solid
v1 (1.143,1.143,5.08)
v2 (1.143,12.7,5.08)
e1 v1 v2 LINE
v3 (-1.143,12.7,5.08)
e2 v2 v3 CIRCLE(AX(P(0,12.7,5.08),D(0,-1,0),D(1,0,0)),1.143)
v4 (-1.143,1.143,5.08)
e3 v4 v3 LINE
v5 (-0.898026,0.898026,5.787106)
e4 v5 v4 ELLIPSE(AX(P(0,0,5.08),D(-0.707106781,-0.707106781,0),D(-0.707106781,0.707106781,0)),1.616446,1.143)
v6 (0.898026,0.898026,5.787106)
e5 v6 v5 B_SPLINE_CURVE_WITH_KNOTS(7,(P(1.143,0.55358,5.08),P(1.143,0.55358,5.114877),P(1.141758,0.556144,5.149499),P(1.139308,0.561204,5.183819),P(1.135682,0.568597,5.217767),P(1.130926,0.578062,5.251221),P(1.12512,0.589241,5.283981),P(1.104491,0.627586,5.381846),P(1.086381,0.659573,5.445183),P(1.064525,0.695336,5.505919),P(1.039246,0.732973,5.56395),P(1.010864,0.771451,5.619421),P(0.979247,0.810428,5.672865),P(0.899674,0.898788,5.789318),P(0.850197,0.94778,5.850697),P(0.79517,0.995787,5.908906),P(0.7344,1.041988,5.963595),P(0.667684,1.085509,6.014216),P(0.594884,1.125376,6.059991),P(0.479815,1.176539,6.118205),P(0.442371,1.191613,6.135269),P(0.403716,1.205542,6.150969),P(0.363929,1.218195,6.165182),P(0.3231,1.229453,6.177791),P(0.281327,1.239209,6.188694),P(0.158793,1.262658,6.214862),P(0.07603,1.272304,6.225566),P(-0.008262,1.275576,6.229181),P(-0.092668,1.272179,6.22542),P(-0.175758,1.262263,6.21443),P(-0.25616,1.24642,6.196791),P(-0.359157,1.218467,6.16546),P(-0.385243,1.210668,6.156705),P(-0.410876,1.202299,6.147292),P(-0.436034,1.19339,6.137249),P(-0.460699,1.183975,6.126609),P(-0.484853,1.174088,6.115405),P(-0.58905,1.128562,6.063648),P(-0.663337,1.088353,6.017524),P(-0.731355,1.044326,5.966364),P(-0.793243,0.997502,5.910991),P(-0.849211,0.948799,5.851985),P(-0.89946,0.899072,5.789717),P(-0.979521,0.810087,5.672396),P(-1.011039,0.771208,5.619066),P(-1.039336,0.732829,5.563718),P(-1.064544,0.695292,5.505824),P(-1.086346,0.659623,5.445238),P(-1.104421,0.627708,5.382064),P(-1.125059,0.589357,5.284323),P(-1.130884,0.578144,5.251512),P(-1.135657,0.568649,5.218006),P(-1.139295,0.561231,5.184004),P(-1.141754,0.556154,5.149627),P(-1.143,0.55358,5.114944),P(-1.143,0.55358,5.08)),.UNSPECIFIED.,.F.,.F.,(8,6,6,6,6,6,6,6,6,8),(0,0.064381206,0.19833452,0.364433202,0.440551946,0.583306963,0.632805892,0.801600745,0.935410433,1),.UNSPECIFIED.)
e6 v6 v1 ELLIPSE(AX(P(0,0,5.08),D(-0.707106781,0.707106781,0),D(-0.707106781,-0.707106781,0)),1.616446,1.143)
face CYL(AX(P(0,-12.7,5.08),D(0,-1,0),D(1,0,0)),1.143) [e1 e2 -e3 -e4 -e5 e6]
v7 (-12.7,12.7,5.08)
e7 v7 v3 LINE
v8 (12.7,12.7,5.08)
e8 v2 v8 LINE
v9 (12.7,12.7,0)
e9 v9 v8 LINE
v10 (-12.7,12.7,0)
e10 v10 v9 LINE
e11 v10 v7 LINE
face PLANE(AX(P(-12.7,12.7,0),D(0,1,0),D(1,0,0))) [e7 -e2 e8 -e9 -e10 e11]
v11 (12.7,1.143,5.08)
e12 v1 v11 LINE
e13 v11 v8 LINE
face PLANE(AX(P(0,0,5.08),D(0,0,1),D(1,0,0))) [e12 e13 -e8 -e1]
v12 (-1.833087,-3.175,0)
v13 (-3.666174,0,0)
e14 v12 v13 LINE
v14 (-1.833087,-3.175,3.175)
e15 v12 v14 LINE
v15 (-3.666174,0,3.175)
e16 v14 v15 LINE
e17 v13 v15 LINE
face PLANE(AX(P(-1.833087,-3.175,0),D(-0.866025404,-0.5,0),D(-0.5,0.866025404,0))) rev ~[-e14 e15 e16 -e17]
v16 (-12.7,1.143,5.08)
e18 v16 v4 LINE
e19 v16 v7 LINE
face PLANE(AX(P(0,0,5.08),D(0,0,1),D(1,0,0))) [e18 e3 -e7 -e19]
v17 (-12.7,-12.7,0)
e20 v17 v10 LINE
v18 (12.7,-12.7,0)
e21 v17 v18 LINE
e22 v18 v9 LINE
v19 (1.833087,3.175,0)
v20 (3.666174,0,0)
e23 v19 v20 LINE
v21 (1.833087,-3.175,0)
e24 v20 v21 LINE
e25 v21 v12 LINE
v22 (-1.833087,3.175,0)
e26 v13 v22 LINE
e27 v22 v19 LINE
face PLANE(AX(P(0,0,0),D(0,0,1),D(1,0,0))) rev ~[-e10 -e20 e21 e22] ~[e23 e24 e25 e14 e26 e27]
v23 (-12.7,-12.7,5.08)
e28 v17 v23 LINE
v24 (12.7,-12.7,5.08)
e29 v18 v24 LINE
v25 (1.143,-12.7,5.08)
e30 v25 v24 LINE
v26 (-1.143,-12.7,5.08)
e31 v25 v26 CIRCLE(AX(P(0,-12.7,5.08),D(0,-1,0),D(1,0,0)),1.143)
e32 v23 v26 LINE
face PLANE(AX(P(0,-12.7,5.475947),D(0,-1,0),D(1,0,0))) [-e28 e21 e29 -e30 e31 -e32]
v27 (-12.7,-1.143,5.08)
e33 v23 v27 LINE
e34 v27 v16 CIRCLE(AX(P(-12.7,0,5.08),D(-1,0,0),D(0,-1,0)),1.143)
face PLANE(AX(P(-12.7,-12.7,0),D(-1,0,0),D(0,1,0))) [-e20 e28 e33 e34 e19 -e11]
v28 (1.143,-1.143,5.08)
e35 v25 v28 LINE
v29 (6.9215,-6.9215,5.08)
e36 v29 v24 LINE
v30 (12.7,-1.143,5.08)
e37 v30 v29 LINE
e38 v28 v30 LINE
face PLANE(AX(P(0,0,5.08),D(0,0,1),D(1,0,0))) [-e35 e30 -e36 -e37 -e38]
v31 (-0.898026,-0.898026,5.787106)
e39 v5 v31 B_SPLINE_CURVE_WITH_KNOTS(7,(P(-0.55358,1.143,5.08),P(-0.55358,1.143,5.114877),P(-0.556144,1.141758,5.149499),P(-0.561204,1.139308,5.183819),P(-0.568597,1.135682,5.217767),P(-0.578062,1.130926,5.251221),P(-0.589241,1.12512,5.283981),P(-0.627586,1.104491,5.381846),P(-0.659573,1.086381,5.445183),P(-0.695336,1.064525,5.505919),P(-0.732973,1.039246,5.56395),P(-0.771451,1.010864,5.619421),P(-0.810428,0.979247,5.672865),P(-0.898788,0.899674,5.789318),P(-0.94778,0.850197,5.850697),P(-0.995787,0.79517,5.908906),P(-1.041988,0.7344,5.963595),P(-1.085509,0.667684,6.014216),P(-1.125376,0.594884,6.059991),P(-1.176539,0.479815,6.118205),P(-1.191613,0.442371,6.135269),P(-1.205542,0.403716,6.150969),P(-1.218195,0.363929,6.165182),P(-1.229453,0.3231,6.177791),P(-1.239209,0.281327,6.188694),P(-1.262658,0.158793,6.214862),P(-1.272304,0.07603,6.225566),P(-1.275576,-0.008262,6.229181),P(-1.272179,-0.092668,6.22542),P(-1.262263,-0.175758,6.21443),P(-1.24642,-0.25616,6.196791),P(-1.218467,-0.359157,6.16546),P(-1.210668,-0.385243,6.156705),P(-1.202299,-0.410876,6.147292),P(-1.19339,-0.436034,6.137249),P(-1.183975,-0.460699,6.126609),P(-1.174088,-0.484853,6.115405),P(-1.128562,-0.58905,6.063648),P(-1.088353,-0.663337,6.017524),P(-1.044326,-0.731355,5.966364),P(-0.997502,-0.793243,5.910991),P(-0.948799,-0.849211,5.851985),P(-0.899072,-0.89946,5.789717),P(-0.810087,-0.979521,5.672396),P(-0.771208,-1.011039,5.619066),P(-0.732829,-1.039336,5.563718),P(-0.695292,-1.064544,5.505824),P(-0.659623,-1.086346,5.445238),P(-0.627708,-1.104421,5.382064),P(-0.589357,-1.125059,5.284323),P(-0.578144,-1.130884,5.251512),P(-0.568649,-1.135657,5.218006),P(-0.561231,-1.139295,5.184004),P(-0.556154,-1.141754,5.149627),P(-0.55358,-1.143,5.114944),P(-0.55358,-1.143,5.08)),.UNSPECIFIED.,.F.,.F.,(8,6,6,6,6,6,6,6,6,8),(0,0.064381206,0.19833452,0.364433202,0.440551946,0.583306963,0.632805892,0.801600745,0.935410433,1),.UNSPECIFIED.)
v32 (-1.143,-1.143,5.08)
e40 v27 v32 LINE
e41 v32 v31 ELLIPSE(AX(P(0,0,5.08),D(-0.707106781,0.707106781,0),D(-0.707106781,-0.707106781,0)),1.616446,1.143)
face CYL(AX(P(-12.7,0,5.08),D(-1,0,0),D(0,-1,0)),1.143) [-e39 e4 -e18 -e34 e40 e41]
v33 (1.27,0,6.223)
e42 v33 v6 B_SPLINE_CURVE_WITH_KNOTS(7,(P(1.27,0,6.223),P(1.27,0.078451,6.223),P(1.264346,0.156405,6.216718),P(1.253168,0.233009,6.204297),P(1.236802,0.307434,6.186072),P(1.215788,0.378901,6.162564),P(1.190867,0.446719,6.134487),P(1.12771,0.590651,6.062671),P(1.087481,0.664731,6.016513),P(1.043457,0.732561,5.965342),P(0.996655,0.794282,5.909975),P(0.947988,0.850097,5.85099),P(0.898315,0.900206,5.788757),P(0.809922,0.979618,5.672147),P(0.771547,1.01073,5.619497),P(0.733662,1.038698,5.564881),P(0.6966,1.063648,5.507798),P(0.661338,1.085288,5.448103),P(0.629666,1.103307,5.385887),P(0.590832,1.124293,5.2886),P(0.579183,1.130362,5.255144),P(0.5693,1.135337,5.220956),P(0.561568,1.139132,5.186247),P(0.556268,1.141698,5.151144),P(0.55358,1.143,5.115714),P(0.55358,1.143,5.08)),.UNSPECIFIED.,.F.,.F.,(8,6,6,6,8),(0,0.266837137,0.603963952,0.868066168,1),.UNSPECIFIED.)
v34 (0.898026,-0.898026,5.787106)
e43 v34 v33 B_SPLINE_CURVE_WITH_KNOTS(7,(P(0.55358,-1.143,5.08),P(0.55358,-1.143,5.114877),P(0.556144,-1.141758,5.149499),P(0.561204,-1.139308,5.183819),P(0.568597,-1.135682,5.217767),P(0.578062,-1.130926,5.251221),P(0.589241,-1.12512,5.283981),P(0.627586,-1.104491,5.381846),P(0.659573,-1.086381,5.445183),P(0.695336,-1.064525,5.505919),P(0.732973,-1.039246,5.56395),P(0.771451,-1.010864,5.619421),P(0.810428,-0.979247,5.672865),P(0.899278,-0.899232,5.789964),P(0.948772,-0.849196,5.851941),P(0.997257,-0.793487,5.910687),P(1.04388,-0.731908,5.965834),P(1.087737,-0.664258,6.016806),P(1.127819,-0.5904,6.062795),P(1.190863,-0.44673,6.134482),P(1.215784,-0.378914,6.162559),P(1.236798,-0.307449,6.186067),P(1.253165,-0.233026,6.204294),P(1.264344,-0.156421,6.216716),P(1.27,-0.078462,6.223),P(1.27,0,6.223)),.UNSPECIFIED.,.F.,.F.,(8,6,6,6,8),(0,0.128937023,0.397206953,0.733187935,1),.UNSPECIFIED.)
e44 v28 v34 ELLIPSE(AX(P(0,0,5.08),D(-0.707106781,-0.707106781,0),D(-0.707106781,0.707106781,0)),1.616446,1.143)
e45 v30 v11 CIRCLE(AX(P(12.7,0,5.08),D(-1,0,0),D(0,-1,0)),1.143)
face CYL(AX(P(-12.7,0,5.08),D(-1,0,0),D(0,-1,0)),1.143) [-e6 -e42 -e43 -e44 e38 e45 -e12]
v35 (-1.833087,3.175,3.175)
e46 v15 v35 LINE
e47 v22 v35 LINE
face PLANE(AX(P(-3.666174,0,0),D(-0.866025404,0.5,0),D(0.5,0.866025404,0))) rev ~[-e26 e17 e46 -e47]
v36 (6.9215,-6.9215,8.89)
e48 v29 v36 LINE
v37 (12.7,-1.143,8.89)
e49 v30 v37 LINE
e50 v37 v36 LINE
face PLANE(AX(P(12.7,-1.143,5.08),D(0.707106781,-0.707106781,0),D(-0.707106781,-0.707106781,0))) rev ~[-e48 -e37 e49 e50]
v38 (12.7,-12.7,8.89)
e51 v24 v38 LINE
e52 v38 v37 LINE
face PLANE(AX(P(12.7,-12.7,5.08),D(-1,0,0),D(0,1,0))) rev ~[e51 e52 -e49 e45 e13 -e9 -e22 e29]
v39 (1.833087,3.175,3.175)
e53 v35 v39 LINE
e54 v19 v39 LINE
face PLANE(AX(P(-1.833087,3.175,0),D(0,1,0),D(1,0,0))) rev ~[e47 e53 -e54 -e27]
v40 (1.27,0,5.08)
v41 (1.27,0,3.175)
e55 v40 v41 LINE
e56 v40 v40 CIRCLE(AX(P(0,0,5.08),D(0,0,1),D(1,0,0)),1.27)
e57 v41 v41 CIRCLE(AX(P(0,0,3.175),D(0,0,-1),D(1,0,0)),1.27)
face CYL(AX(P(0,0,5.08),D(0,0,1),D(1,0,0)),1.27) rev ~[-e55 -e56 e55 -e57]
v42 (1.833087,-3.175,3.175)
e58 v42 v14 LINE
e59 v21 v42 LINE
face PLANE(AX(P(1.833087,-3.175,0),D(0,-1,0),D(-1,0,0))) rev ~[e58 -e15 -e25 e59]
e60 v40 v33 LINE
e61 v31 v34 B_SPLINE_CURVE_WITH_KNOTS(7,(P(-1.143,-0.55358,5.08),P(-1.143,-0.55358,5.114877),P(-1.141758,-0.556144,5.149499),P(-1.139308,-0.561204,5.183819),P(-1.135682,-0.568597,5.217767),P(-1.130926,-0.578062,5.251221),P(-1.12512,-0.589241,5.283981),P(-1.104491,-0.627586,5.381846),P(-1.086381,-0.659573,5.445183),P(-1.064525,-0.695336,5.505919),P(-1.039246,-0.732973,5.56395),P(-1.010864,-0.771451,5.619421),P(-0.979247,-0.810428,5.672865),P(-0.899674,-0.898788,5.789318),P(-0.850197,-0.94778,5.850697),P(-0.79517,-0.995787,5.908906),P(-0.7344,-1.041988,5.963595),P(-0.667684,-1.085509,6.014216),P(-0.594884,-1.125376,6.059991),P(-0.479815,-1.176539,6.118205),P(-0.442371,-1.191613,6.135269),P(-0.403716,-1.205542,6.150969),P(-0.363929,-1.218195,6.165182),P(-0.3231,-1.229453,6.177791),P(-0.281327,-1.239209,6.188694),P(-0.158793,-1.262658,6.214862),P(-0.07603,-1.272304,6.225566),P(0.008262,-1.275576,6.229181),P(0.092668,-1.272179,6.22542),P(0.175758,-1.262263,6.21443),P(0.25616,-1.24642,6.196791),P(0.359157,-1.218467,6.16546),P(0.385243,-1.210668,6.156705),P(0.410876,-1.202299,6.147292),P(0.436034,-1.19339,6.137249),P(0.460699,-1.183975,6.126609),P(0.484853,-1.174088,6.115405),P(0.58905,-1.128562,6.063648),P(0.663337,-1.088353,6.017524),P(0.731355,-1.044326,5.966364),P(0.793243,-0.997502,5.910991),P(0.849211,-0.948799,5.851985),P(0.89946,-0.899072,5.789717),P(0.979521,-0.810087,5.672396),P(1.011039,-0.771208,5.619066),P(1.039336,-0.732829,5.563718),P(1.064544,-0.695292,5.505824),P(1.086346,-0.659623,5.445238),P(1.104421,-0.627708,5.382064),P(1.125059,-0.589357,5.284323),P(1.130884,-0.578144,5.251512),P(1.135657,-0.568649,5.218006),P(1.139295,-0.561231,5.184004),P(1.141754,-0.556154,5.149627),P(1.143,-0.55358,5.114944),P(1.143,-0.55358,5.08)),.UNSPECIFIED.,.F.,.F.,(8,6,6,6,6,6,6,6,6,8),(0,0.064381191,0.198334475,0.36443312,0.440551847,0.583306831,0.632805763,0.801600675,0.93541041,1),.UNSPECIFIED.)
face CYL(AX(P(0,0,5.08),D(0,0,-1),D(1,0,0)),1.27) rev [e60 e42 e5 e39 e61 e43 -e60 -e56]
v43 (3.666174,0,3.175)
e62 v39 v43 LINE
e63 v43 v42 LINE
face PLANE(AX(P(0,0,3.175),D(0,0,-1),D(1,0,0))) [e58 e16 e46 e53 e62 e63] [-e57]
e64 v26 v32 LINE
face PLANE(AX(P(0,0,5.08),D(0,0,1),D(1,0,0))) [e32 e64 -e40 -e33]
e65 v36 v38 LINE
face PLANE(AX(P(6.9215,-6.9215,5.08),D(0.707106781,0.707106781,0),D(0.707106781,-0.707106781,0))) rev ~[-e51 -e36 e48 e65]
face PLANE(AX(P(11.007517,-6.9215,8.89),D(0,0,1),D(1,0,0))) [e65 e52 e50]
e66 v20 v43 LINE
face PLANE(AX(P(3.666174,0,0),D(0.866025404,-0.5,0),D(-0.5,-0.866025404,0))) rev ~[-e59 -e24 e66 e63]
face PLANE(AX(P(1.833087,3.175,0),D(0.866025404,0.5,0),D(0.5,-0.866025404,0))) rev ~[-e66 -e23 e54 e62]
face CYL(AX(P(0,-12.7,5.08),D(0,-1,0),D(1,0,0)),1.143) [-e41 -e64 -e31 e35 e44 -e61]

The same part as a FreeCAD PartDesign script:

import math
import FreeCAD as App
import Part
import Sketcher

V = App.Vector
Q = App.Units.Quantity


def add_polygon(sketch, points):
    """Adds a closed chain of lines whose ends are joined by coincident constraints."""
    first, n = sketch.GeometryCount, len(points)
    for a, b in zip(points, points[1:] + points[:1]):
        sketch.addGeometry(Part.LineSegment(App.Vector(*a, 0), App.Vector(*b, 0)), False)
    for i in range(n):
        sketch.addConstraint(Sketcher.Constraint("Coincident", first + i, 2, first + (i + 1) % n, 1))

doc = App.newDocument("Part")
params = doc.addObject("Spreadsheet::Sheet", "Params")
for row, (alias, value) in enumerate([
    ("sketch1_width", "1 in"),
    ("pad1_length", "0.2 in"),
    ("sketch2_radius", "0.045 in"),
    ("pad2_length", "1 in"),
    ("sketch3_radius", "0.045 in"),
    ("pad3_length", "1 in"),
    ("sketch4_diameter", "0.1 in"),
    ("sketch5_height", "0.455 in"),
    ("pad4_length", "0.15 in"),
    ("sketch6_diameter", "0.1 in"),
    ("pocket2_length", "0.125 in"),
], start=1):
    params.set(f"A{row}", alias)
    params.set(f"B{row}", "=" + value)
    params.setAlias(f"B{row}", alias)

body = doc.addObject("PartDesign::Body", "Body")

# Sketch on XY plane
sketch1 = doc.addObject("Sketcher::SketchObject", "Sketch")
body.addObject(sketch1)
sketch1.AttachmentSupport = (doc.XY_Plane, [""])
sketch1.MapMode = "FlatFace"
add_polygon(sketch1, [(-13, 13), (-13, -13), (13, -13), (13, 13)])  # lines 0-3
sketch1.addConstraint([
    Sketcher.Constraint("Vertical", 0),
    Sketcher.Constraint("Horizontal", 1),
    Sketcher.Constraint("Vertical", 2),
    Sketcher.Constraint("Horizontal", 3),
    Sketcher.Constraint("Symmetric", 0, 2, 2, 2, -1, 1),
    Sketcher.Constraint("Equal", 3, 0),
    Sketcher.Constraint("DistanceX", 1, 1, 1, 2, Q("1 in")),
])
sketch1.setExpression("Constraints[10]", "Params.sketch1_width")
pad1 = doc.addObject("PartDesign::Pad", "Pad")
body.addObject(pad1)
pad1.Profile = sketch1
pad1.setExpression("Length", "Params.pad1_length")

# Sketch on YZ plane
sketch2 = doc.addObject("Sketcher::SketchObject", "Sketch001")
body.addObject(sketch2)
sketch2.AttachmentSupport = (doc.YZ_Plane, [""])
sketch2.MapMode = "FlatFace"
sketch2.AttachmentOffset = App.Placement(V(0, 0, -0.5 * 25.4), App.Rotation())
sketch2.addGeometry([
    Part.LineSegment(V(1.1, 5.1, 0), V(-1.1, 5.1, 0)),
    Part.ArcOfCircle(Part.Circle(V(0, 5.1, 0), V(0, 0, 1), 1.1), math.radians(0), math.radians(180)),
], False)
sketch2.addConstraint([
    Sketcher.Constraint("Coincident", 0, 1, 1, 1),
    Sketcher.Constraint("Coincident", 1, 2, 0, 2),
    Sketcher.Constraint("Horizontal", 0),
    Sketcher.Constraint("PointOnObject", 1, 3, -2),
    Sketcher.Constraint("Horizontal", 1, 3, 0, 1),
    Sketcher.Constraint("Radius", 1, Q("0.045 in")),
    Sketcher.Constraint("DistanceY", -1, 1, 1, 3, Q("0.2 in")),
])
sketch2.setExpression("Constraints[5]", "Params.sketch2_radius")
pad2 = doc.addObject("PartDesign::Pad", "Pad001")
body.addObject(pad2)
pad2.Profile = sketch2
pad2.setExpression("Length", "Params.pad2_length")

# Sketch on XZ plane
sketch3 = doc.addObject("Sketcher::SketchObject", "Sketch002")
body.addObject(sketch3)
sketch3.AttachmentSupport = (doc.XZ_Plane, [""])
sketch3.MapMode = "FlatFace"
sketch3.AttachmentOffset = App.Placement(V(0, 0, 0.5 * 25.4), App.Rotation())
sketch3.addGeometry([
    Part.LineSegment(V(-1.1, 5.1, 0), V(1.1, 5.1, 0)),
    Part.ArcOfCircle(Part.Circle(V(0, 5.1, 0), V(0, 0, 1), 1.1), math.radians(0), math.radians(180)),
], False)
sketch3.addConstraint([
    Sketcher.Constraint("Coincident", 0, 1, 1, 2),
    Sketcher.Constraint("Coincident", 1, 1, 0, 2),
    Sketcher.Constraint("Horizontal", 0),
    Sketcher.Constraint("PointOnObject", 1, 3, -2),
    Sketcher.Constraint("Horizontal", 1, 3, 0, 1),
    Sketcher.Constraint("Radius", 1, Q("0.045 in")),
    Sketcher.Constraint("DistanceY", -1, 1, 1, 3, Q("0.2 in")),
])
sketch3.setExpression("Constraints[5]", "Params.sketch3_radius")
pad3 = doc.addObject("PartDesign::Pad", "Pad002")
body.addObject(pad3)
pad3.Profile = sketch3
pad3.setExpression("Length", "Params.pad3_length")
pad3.Reversed = True

# Sketch on XY plane
sketch4 = doc.addObject("Sketcher::SketchObject", "Sketch003")
body.addObject(sketch4)
sketch4.AttachmentSupport = (doc.XY_Plane, [""])
sketch4.MapMode = "FlatFace"
sketch4.AttachmentOffset = App.Placement(V(0, 0, 0.2 * 25.4), App.Rotation())
sketch4.addGeometry(Part.Circle(V(0, 0, 0), V(0, 0, 1), 1.3), False)
sketch4.addConstraint([
    Sketcher.Constraint("Coincident", 0, 3, -1, 1),
    Sketcher.Constraint("Diameter", 0, Q("0.1 in")),
])
sketch4.setExpression("Constraints[1]", "Params.sketch4_diameter")
pocket1 = doc.addObject("PartDesign::Pocket", "Pocket")
body.addObject(pocket1)
pocket1.Profile = sketch4
pocket1.Type = "ThroughAll"
pocket1.Midplane = True

# Sketch on XY plane
sketch5 = doc.addObject("Sketcher::SketchObject", "Sketch004")
body.addObject(sketch5)
sketch5.AttachmentSupport = (doc.XY_Plane, [""])
sketch5.MapMode = "FlatFace"
sketch5.AttachmentOffset = App.Placement(V(0, 0, 0.2 * 25.4), App.Rotation())
add_polygon(sketch5, [(13, -1), (7, -7), (13, -13)])  # lines 0-2
sketch5.addConstraint([
    Sketcher.Constraint("Vertical", 2),
    Sketcher.Constraint("Perpendicular", 0, 1),
    Sketcher.Constraint("Equal", 0, 1),
    Sketcher.Constraint("DistanceX", -1, 1, 1, 2, Q("0.5 in")),
    Sketcher.Constraint("DistanceY", 1, 2, -1, 1, Q("0.5 in")),
    Sketcher.Constraint("DistanceY", 2, 1, 2, 2, Q("0.455 in")),
])
sketch5.setExpression("Constraints[8]", "Params.sketch5_height")
pad4 = doc.addObject("PartDesign::Pad", "Pad003")
body.addObject(pad4)
pad4.Profile = sketch5
pad4.setExpression("Length", "Params.pad4_length")

# Sketch on XY plane
sketch6 = doc.addObject("Sketcher::SketchObject", "Sketch005")
body.addObject(sketch6)
sketch6.AttachmentSupport = (doc.XY_Plane, [""])
sketch6.MapMode = "FlatFace"
add_polygon(sketch6, [(-1.8, 3.2), (1.8, 3.2), (3.7, 0), (1.8, -3.2), (-1.8, -3.2), (-3.7, 0)])  # lines 0-5
sketch6.addGeometry(Part.Circle(V(0, 0, 0), V(0, 0, 1), 1.3), False)  # 6
sketch6.addConstraint([
    Sketcher.Constraint("Horizontal", 0),
    Sketcher.Constraint("Horizontal", 3),
    Sketcher.Constraint("Coincident", 6, 3, -1, 1),
    Sketcher.Constraint("Symmetric", 0, 2, 3, 2, -1, 1),
    Sketcher.Constraint("Symmetric", 1, 2, 4, 2, -1, 1),
    Sketcher.Constraint("PointOnObject", 1, 2, -1),
    Sketcher.Constraint("Parallel", 2, 5),
    Sketcher.Constraint("Vertical", 0, 2, 2, 2),
    Sketcher.Constraint("Diameter", 6, Q("0.1 in")),
    Sketcher.Constraint("Angle", 1, Q("-60 deg")),
    Sketcher.Constraint("DistanceY", 2, 2, 0, 2, Q("0.25 in")),
    Sketcher.Constraint("DistanceX", 0, 1, 0, 2, 3.666174),
])
sketch6.setExpression("Constraints[14]", "Params.sketch6_diameter")
pocket2 = doc.addObject("PartDesign::Pocket", "Pocket001")
body.addObject(pocket2)
pocket2.Profile = sketch6
pocket2.setExpression("Length", "Params.pocket2_length")
pocket2.Reversed = True

doc.recompute()
